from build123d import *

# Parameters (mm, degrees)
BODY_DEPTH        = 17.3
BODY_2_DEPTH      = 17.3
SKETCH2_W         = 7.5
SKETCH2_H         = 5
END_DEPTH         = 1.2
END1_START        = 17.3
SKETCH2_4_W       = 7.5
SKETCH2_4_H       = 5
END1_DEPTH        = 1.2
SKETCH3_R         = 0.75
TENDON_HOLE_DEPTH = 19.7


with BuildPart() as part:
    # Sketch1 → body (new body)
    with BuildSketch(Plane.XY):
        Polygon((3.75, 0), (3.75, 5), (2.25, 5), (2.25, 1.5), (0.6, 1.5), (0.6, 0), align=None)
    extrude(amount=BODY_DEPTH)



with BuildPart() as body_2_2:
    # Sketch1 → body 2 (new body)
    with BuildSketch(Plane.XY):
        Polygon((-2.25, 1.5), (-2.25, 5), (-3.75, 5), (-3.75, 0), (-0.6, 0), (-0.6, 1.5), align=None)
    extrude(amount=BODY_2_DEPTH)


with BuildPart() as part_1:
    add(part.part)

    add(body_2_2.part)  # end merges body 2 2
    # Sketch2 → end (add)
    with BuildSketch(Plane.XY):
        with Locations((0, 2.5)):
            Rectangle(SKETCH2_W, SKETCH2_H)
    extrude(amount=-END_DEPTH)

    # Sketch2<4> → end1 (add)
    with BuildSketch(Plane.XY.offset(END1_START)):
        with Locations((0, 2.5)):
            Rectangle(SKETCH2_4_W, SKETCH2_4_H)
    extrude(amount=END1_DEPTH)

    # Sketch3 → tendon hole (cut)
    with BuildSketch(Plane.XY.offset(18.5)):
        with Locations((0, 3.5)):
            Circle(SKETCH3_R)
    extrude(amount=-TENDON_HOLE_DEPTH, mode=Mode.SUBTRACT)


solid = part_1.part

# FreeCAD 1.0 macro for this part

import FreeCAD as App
import Part
import Sketcher


def add_polygon(sketch, points):
    """Adds a closed chain of lines whose ends are joined by coincident constraints."""
    first, n = sketch.GeometryCount, len(points)
    for a, b in zip(points, points[1:] + points[:1]):
        sketch.addGeometry(Part.LineSegment(App.Vector(*a, 0), App.Vector(*b, 0)), False)
    for i in range(n):
        sketch.addConstraint(Sketcher.Constraint("Coincident", first + i, 2, first + (i + 1) % n, 1))

doc = App.newDocument("Part")
params = doc.addObject("Spreadsheet::Sheet", "Params")
for row, (alias, value) in enumerate([
    ("sketch1_height", "5 mm"),
    ("sketch1_width", "1.5 mm"),
    ("sketch1_width2", "1.65 mm"),
    ("pad1_length", "17.3 mm"),
    ("sketch2_height", "5 mm"),
    ("sketch2_width", "1.5 mm"),
    ("sketch2_width2", "3.15 mm"),
    ("pad2_length", "17.3 mm"),
    ("sketch3_height", "5 mm"),
    ("sketch3_width", "7.5 mm"),
    ("pad3_length", "1.2 mm"),
    ("sketch4_height", "5 mm"),
    ("sketch4_width", "7.5 mm"),
    ("pad4_length", "1.2 mm"),
    ("sketch5_diameter", "1.5 mm"),
    ("pocket1_length", "19.7 mm"),
], start=1):
    params.set(f"A{row}", alias)
    params.set(f"B{row}", "=" + value)
    params.setAlias(f"B{row}", alias)

body = doc.addObject("PartDesign::Body", "Body")

# Sketch on XY plane
sketch1 = body.newObject("Sketcher::SketchObject", "Sketch")
sketch1.AttachmentSupport = (doc.getObject("XY_Plane"), [""])
sketch1.MapMode = "FlatFace"
add_polygon(sketch1, [(3.8, 0), (3.8, 5), (2.2, 5), (2.2, 1.5), (0.6, 1.5), (0.6, 0)])  # lines 0-5
sketch1.addConstraint(Sketcher.Constraint("Vertical", 0))
sketch1.addConstraint(Sketcher.Constraint("Horizontal", 1))
sketch1.addConstraint(Sketcher.Constraint("Vertical", 2))
sketch1.addConstraint(Sketcher.Constraint("Horizontal", 3))
sketch1.addConstraint(Sketcher.Constraint("Vertical", 4))
sketch1.addConstraint(Sketcher.Constraint("Horizontal", 5))
sketch1.addConstraint(Sketcher.Constraint("PointOnObject", 4, 2, -1))
sketch1.addConstraint(Sketcher.Constraint("Equal", 1, 4))
sketch1.addConstraint(Sketcher.Constraint("DistanceY", 0, 1, 0, 2, 5.0))
sketch1.addConstraint(Sketcher.Constraint("DistanceX", 1, 2, 1, 1, 1.5))
sketch1.addConstraint(Sketcher.Constraint("DistanceX", 3, 2, 3, 1, 1.65))
sketch1.addConstraint(Sketcher.Constraint("DistanceX", -1, 1, 3, 2, 0.6))
sketch1.setExpression("Constraints[14]", "Params.sketch1_height")
sketch1.setExpression("Constraints[15]", "Params.sketch1_width")
sketch1.setExpression("Constraints[16]", "Params.sketch1_width2")
pad1 = body.newObject("PartDesign::Pad", "Pad")
pad1.Profile = sketch1
pad1.setExpression("Length", "Params.pad1_length")
body2 = doc.addObject("PartDesign::Body", "Body001")

# Sketch on XY plane
sketch2 = body2.newObject("Sketcher::SketchObject", "Sketch001")
sketch2.AttachmentSupport = (doc.getObject("XY_Plane001"), [""])
sketch2.MapMode = "FlatFace"
add_polygon(sketch2, [(-2.2, 1.5), (-2.2, 5), (-3.8, 5), (-3.8, 0), (-0.6, 0), (-0.6, 1.5)])  # lines 0-5
sketch2.addConstraint(Sketcher.Constraint("Vertical", 0))
sketch2.addConstraint(Sketcher.Constraint("Horizontal", 1))
sketch2.addConstraint(Sketcher.Constraint("Vertical", 2))
sketch2.addConstraint(Sketcher.Constraint("Horizontal", 3))
sketch2.addConstraint(Sketcher.Constraint("Vertical", 4))
sketch2.addConstraint(Sketcher.Constraint("Horizontal", 5))
sketch2.addConstraint(Sketcher.Constraint("PointOnObject", 2, 2, -1))
sketch2.addConstraint(Sketcher.Constraint("Equal", 1, 4))
sketch2.addConstraint(Sketcher.Constraint("DistanceY", 2, 2, 2, 1, 5.0))
sketch2.addConstraint(Sketcher.Constraint("DistanceX", 1, 2, 1, 1, 1.5))
sketch2.addConstraint(Sketcher.Constraint("DistanceX", 3, 1, 3, 2, 3.15))
sketch2.addConstraint(Sketcher.Constraint("DistanceX", 3, 2, -1, 1, 0.6))
sketch2.setExpression("Constraints[14]", "Params.sketch2_height")
sketch2.setExpression("Constraints[15]", "Params.sketch2_width")
sketch2.setExpression("Constraints[16]", "Params.sketch2_width2")
pad2 = body2.newObject("PartDesign::Pad", "Pad001")
pad2.Profile = sketch2
pad2.setExpression("Length", "Params.pad2_length")
body.AllowCompound = True
doc.recompute()

boolean = body.newObject("PartDesign::Boolean", "Boolean")
boolean.Type = "Fuse"
boolean.addObjects([body2])

# Sketch on XY plane
sketch3 = body.newObject("Sketcher::SketchObject", "Sketch002")
sketch3.AttachmentSupport = (doc.getObject("XY_Plane"), [""])
sketch3.MapMode = "FlatFace"
add_polygon(sketch3, [(-4, 5), (-4, 0), (4, 0), (4, 5)])  # lines 0-3
sketch3.addConstraint(Sketcher.Constraint("Vertical", 0))
sketch3.addConstraint(Sketcher.Constraint("Horizontal", 1))
sketch3.addConstraint(Sketcher.Constraint("Vertical", 2))
sketch3.addConstraint(Sketcher.Constraint("Horizontal", 3))
sketch3.addConstraint(Sketcher.Constraint("Symmetric", 0, 2, 1, 2, -1, 1))
sketch3.addConstraint(Sketcher.Constraint("DistanceY", 0, 2, 0, 1, 5.0))
sketch3.addConstraint(Sketcher.Constraint("DistanceX", 1, 1, 1, 2, 7.5))
sketch3.setExpression("Constraints[9]", "Params.sketch3_height")
sketch3.setExpression("Constraints[10]", "Params.sketch3_width")
pad3 = body.newObject("PartDesign::Pad", "Pad002")
pad3.Profile = sketch3
pad3.setExpression("Length", "Params.pad3_length")
pad3.Reversed = True

# Sketch on XY plane
sketch4 = body.newObject("Sketcher::SketchObject", "Sketch003")
sketch4.AttachmentSupport = (doc.getObject("XY_Plane"), [""])
sketch4.MapMode = "FlatFace"
sketch4.AttachmentOffset = App.Placement(App.Vector(0, 0, 17.3), App.Rotation())
add_polygon(sketch4, [(-4, 5), (-4, 0), (4, 0), (4, 5)])  # lines 0-3
sketch4.addConstraint(Sketcher.Constraint("Vertical", 0))
sketch4.addConstraint(Sketcher.Constraint("Horizontal", 1))
sketch4.addConstraint(Sketcher.Constraint("Vertical", 2))
sketch4.addConstraint(Sketcher.Constraint("Horizontal", 3))
sketch4.addConstraint(Sketcher.Constraint("Symmetric", 0, 2, 1, 2, -1, 1))
sketch4.addConstraint(Sketcher.Constraint("DistanceY", 0, 2, 0, 1, 5.0))
sketch4.addConstraint(Sketcher.Constraint("DistanceX", 1, 1, 1, 2, 7.5))
sketch4.setExpression("Constraints[9]", "Params.sketch4_height")
sketch4.setExpression("Constraints[10]", "Params.sketch4_width")
pad4 = body.newObject("PartDesign::Pad", "Pad003")
pad4.Profile = sketch4
pad4.setExpression("Length", "Params.pad4_length")

# Sketch on XY plane
sketch5 = body.newObject("Sketcher::SketchObject", "Sketch004")
sketch5.AttachmentSupport = (doc.getObject("XY_Plane"), [""])
sketch5.MapMode = "FlatFace"
sketch5.AttachmentOffset = App.Placement(App.Vector(0, 0, 18.5), App.Rotation())
sketch5.addGeometry(Part.Circle(App.Vector(0, 3.5, 0), App.Vector(0, 0, 1), 0.8), False)
sketch5.addConstraint(Sketcher.Constraint("PointOnObject", 0, 3, -2))
sketch5.addConstraint(Sketcher.Constraint("Diameter", 0, 1.5))
sketch5.addConstraint(Sketcher.Constraint("DistanceY", -1, 1, 0, 3, 3.5))
sketch5.setExpression("Constraints[1]", "Params.sketch5_diameter")
pocket1 = body.newObject("PartDesign::Pocket", "Pocket")
pocket1.Profile = sketch5
pocket1.setExpression("Length", "Params.pocket1_length")

doc.recompute()
